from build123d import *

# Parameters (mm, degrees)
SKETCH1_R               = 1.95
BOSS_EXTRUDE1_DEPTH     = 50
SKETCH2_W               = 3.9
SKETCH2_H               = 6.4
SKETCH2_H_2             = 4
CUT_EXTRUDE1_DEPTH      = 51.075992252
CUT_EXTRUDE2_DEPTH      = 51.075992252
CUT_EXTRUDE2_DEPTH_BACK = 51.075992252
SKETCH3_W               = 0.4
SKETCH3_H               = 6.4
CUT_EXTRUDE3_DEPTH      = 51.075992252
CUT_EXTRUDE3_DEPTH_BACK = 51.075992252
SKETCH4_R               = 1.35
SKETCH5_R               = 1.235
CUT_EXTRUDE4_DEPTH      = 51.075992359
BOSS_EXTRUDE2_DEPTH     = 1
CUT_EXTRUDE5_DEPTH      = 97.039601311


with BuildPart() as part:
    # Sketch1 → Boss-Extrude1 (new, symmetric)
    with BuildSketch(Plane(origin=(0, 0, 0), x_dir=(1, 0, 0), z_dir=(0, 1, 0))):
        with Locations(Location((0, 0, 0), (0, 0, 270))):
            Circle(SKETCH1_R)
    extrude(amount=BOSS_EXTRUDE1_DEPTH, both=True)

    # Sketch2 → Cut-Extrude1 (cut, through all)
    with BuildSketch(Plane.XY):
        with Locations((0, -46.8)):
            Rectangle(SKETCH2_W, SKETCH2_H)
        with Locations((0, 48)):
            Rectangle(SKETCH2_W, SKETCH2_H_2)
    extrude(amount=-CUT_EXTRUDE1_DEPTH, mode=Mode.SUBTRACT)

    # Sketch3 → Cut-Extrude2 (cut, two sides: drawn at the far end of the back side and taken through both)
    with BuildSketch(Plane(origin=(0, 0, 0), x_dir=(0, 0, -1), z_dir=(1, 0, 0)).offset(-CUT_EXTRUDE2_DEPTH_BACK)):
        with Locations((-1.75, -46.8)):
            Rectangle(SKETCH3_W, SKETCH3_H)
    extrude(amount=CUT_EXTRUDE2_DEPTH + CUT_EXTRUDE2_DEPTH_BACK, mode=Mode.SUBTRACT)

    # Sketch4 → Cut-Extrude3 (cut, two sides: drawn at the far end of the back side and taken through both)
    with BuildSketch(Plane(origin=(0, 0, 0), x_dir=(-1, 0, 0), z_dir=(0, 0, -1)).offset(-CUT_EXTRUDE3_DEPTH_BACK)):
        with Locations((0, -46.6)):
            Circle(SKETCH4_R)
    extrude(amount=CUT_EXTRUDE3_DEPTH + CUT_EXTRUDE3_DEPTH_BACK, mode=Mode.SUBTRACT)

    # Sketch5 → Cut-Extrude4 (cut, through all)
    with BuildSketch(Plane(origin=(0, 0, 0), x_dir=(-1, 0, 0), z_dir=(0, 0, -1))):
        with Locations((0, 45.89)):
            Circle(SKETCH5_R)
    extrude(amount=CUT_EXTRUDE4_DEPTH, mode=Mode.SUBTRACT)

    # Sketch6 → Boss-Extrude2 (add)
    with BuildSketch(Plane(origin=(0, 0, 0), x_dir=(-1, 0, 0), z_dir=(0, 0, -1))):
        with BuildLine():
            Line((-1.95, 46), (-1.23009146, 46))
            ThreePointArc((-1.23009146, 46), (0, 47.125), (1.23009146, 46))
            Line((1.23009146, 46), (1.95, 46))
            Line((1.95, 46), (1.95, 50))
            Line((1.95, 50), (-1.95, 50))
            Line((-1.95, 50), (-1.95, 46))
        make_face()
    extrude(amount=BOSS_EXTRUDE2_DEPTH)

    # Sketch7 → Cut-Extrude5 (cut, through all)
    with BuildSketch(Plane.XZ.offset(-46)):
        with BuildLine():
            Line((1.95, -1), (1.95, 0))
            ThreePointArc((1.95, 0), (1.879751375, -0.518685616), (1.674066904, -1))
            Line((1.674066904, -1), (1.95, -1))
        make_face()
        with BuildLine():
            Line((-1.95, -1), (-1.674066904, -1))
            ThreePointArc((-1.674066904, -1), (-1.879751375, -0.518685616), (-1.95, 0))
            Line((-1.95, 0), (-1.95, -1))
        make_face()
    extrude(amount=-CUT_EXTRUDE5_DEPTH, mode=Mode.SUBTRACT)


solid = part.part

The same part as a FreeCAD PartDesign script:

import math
import FreeCAD as App
import Part
import Sketcher

V = App.Vector

doc = App.newDocument("Part")
body = doc.addObject("PartDesign::Body", "Body")

# Sketch on XZ plane
sketch1 = body.newObject("Sketcher::SketchObject", "Sketch")
sketch1.AttachmentSupport = (doc.getObject("XZ_Plane"), [""])
sketch1.MapMode = "FlatFace"
sketch1.addGeometry(Part.Circle(V(0, 0, 0), V(0, 0, 1), 1.95), False)
sketch1.addConstraint([
    Sketcher.Constraint("Coincident", 0, 3, -1, 1),
    Sketcher.Constraint("Diameter", 0, 3.9),
])
pad1 = body.newObject("PartDesign::Pad", "Pad")
pad1.Profile = sketch1
pad1.Length = 100
pad1.Midplane = True

# Sketch on XY plane
sketch2 = body.newObject("Sketcher::SketchObject", "Sketch001")
sketch2.AttachmentSupport = (doc.getObject("XY_Plane"), [""])
sketch2.MapMode = "FlatFace"
sketch2.addGeometry([
    Part.LineSegment(V(-1.95, -43.6, 0), V(-1.95, -50, 0)),  # 0
    Part.LineSegment(V(-1.95, -50, 0), V(1.95, -50, 0)),  # 1
    Part.LineSegment(V(1.95, -50, 0), V(1.95, -43.6, 0)),  # 2
    Part.LineSegment(V(1.95, -43.6, 0), V(-1.95, -43.6, 0)),  # 3
    Part.LineSegment(V(-1.95, 50, 0), V(-1.95, 46, 0)),  # 4
    Part.LineSegment(V(-1.95, 46, 0), V(1.95, 46, 0)),  # 5
    Part.LineSegment(V(1.95, 46, 0), V(1.95, 50, 0)),  # 6
    Part.LineSegment(V(1.95, 50, 0), V(-1.95, 50, 0)),  # 7
], False)
sketch2.addConstraint([
    Sketcher.Constraint("Coincident", 0, 2, 1, 1),
    Sketcher.Constraint("Coincident", 1, 2, 2, 1),
    Sketcher.Constraint("Coincident", 2, 2, 3, 1),
    Sketcher.Constraint("Coincident", 3, 2, 0, 1),
    Sketcher.Constraint("Coincident", 4, 2, 5, 1),
    Sketcher.Constraint("Coincident", 5, 2, 6, 1),
    Sketcher.Constraint("Coincident", 6, 2, 7, 1),
    Sketcher.Constraint("Coincident", 7, 2, 4, 1),
    Sketcher.Constraint("Vertical", 0),
    Sketcher.Constraint("Horizontal", 1),
    Sketcher.Constraint("Vertical", 2),
    Sketcher.Constraint("Horizontal", 3),
    Sketcher.Constraint("Vertical", 4),
    Sketcher.Constraint("Horizontal", 5),
    Sketcher.Constraint("Vertical", 6),
    Sketcher.Constraint("Horizontal", 7),
    Sketcher.Constraint("Symmetric", 0, 2, 6, 2, -1, 1),
    Sketcher.Constraint("Vertical", 3, 2, 4, 2),
    Sketcher.Constraint("Vertical", 2, 2, 5, 2),
    Sketcher.Constraint("DistanceY", 4, 2, 4, 1, 4.0),
    Sketcher.Constraint("DistanceX", 1, 1, 1, 2, 3.9),
    Sketcher.Constraint("DistanceY", 0, 2, 0, 1, 6.4),
    Sketcher.Constraint("DistanceY", 0, 2, -1, 1, 50.0),
])
pocket1 = body.newObject("PartDesign::Pocket", "Pocket")
pocket1.Profile = sketch2
pocket1.Type = "ThroughAll"

# Sketch on YZ plane
sketch3 = body.newObject("Sketcher::SketchObject", "Sketch002")
sketch3.AttachmentSupport = (doc.getObject("YZ_Plane"), [""])
sketch3.MapMode = "FlatFace"
sketch3.addGeometry([
    Part.LineSegment(V(-43.6, 1.95, 0), V(-50, 1.95, 0)),
    Part.LineSegment(V(-50, 1.95, 0), V(-50, 1.55, 0)),
    Part.LineSegment(V(-50, 1.55, 0), V(-43.6, 1.55, 0)),
    Part.LineSegment(V(-43.6, 1.55, 0), V(-43.6, 1.95, 0)),
], False)
sketch3.addConstraint([
    Sketcher.Constraint("Coincident", 0, 2, 1, 1),
    Sketcher.Constraint("Coincident", 1, 2, 2, 1),
    Sketcher.Constraint("Coincident", 2, 2, 3, 1),
    Sketcher.Constraint("Coincident", 3, 2, 0, 1),
    Sketcher.Constraint("Horizontal", 0),
    Sketcher.Constraint("Vertical", 1),
    Sketcher.Constraint("Horizontal", 2),
    Sketcher.Constraint("Vertical", 3),
    Sketcher.Constraint("DistanceX", 0, 2, 0, 1, 6.4),
    Sketcher.Constraint("DistanceY", 1, 2, 1, 1, 0.4),
    Sketcher.Constraint("DistanceX", 0, 2, -1, 1, 50.0),
    Sketcher.Constraint("DistanceY", -1, 1, 0, 2, 1.95),
])
pocket2 = body.newObject("PartDesign::Pocket", "Pocket001")
pocket2.Profile = sketch3
pocket2.Type = "ThroughAll"
pocket2.Midplane = True

# Sketch on XY plane
sketch4 = body.newObject("Sketcher::SketchObject", "Sketch003")
sketch4.AttachmentSupport = (doc.getObject("XY_Plane"), [""])
sketch4.MapMode = "FlatFace"
sketch4.addGeometry(Part.Circle(V(0, -46.6, 0), V(0, 0, 1), 1.35), False)
sketch4.addConstraint([
    Sketcher.Constraint("PointOnObject", 0, 3, -2),
    Sketcher.Constraint("Diameter", 0, 2.7),
    Sketcher.Constraint("DistanceY", 0, 3, -1, 1, 46.6),
])
pocket3 = body.newObject("PartDesign::Pocket", "Pocket002")
pocket3.Profile = sketch4
pocket3.Type = "ThroughAll"
pocket3.Midplane = True

# Sketch on XY plane
sketch5 = body.newObject("Sketcher::SketchObject", "Sketch004")
sketch5.AttachmentSupport = (doc.getObject("XY_Plane"), [""])
sketch5.MapMode = "FlatFace"
sketch5.addGeometry(Part.Circle(V(0, 45.89, 0), V(0, 0, 1), 1.235), False)
sketch5.addConstraint([
    Sketcher.Constraint("PointOnObject", 0, 3, -2),
    Sketcher.Constraint("Diameter", 0, 2.47),
    Sketcher.Constraint("DistanceY", -1, 1, 0, 3, 45.89),
])
pocket4 = body.newObject("PartDesign::Pocket", "Pocket003")
pocket4.Profile = sketch5
pocket4.Type = "ThroughAll"

# Sketch on XY plane
sketch6 = body.newObject("Sketcher::SketchObject", "Sketch005")
sketch6.AttachmentSupport = (doc.getObject("XY_Plane"), [""])
sketch6.MapMode = "FlatFace"
sketch6.addGeometry([
    Part.LineSegment(V(1.95, 46, 0), V(1.230091, 46, 0)),  # 0
    Part.ArcOfCircle(Part.Circle(V(0, 45.89, 0), V(0, 0, 1), 1.235), math.radians(5.11004), math.radians(174.88996)),  # 1
    Part.LineSegment(V(-1.230091, 46, 0), V(-1.95, 46, 0)),  # 2
    Part.LineSegment(V(-1.95, 46, 0), V(-1.95, 50, 0)),  # 3
    Part.LineSegment(V(-1.95, 50, 0), V(1.95, 50, 0)),  # 4
    Part.LineSegment(V(1.95, 50, 0), V(1.95, 46, 0)),  # 5
], False)
sketch6.addConstraint([
    Sketcher.Constraint("Coincident", 0, 2, 1, 1),
    Sketcher.Constraint("Coincident", 1, 2, 2, 1),
    Sketcher.Constraint("Coincident", 2, 2, 3, 1),
    Sketcher.Constraint("Coincident", 3, 2, 4, 1),
    Sketcher.Constraint("Coincident", 4, 2, 5, 1),
    Sketcher.Constraint("Coincident", 5, 2, 0, 1),
    Sketcher.Constraint("Horizontal", 0),
    Sketcher.Constraint("Horizontal", 2),
    Sketcher.Constraint("Vertical", 3),
    Sketcher.Constraint("Horizontal", 4),
    Sketcher.Constraint("Vertical", 5),
    Sketcher.Constraint("Symmetric", 0, 2, 1, 2, -2),
    Sketcher.Constraint("Equal", 0, 2),
    Sketcher.Constraint("DistanceY", 3, 1, 3, 2, 4.0),
    Sketcher.Constraint("DistanceX", 4, 1, 4, 2, 3.9),
    Sketcher.Constraint("DistanceY", -1, 1, 0, 2, 46.0),
    Sketcher.Constraint("Radius", 1, 1.235),
    Sketcher.Constraint("DistanceY", -1, 1, 1, 3, 45.89),
])
pad2 = body.newObject("PartDesign::Pad", "Pad001")
pad2.Profile = sketch6
pad2.Length = 1
pad2.Reversed = True

# Sketch on XZ plane
sketch7 = body.newObject("Sketcher::SketchObject", "Sketch006")
sketch7.AttachmentSupport = (doc.getObject("XZ_Plane"), [""])
sketch7.MapMode = "FlatFace"
sketch7.AttachmentOffset = App.Placement(V(0, 0, -46), App.Rotation())
sketch7.addGeometry([
    Part.LineSegment(V(1.95, -1, 0), V(1.95, 0, 0)),  # 0
    Part.ArcOfCircle(Part.Circle(V(0, 0, 0), V(0, 0, 1), 1.95), math.radians(-30.851886), math.radians(0)),  # 1
    Part.LineSegment(V(1.674067, -1, 0), V(1.95, -1, 0)),  # 2
    Part.LineSegment(V(-1.95, -1, 0), V(-1.674067, -1, 0)),  # 3
    Part.ArcOfCircle(Part.Circle(V(0, 0, 0), V(0, 0, 1), 1.95), math.radians(180), math.radians(210.851886)),  # 4
    Part.LineSegment(V(-1.95, 0, 0), V(-1.95, -1, 0)),  # 5
], False)
sketch7.addConstraint([
    Sketcher.Constraint("Tangent", 0, 2, 1, 2),
    Sketcher.Constraint("Coincident", 1, 1, 2, 1),
    Sketcher.Constraint("Coincident", 2, 2, 0, 1),
    Sketcher.Constraint("Coincident", 3, 2, 4, 2),
    Sketcher.Constraint("Tangent", 4, 1, 5, 1),
    Sketcher.Constraint("Coincident", 5, 2, 3, 1),
    Sketcher.Constraint("Vertical", 0),
    Sketcher.Constraint("Horizontal", 2),
    Sketcher.Constraint("Horizontal", 3),
    Sketcher.Constraint("Vertical", 5),
    Sketcher.Constraint("Coincident", 1, 3, -1, 1),
    Sketcher.Constraint("Coincident", 4, 3, -1, 1),
    Sketcher.Constraint("Equal", 1, 4),
    Sketcher.Constraint("Horizontal", 2, 2, 3, 2),
    Sketcher.Constraint("DistanceY", 0, 1, 0, 2, 1.0),
    Sketcher.Constraint("Radius", 1, 1.95),
])
pocket5 = body.newObject("PartDesign::Pocket", "Pocket004")
pocket5.Profile = sketch7
pocket5.Type = "ThroughAll"

doc.recompute()
